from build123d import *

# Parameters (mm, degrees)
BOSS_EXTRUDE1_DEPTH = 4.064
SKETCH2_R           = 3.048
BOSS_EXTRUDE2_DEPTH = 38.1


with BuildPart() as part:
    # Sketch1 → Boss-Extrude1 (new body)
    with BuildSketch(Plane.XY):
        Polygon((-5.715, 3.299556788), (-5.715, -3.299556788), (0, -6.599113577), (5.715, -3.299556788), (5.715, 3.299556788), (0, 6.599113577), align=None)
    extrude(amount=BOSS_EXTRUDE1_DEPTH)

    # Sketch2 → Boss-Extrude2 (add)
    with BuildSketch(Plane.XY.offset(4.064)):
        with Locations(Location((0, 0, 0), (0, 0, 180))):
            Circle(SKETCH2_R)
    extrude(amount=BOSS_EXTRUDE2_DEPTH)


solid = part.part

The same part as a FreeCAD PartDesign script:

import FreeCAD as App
import Part
import Sketcher
Q = App.Units.Quantity

doc = App.newDocument("Part")
body = doc.addObject("PartDesign::Body", "Body")

# Sketch on XY plane
sketch1 = body.newObject("Sketcher::SketchObject", "Sketch")
sketch1.AttachmentSupport = (doc.getObject("XY_Plane"), [""])
sketch1.MapMode = "FlatFace"
sketch1.addGeometry([
    Part.LineSegment(App.Vector(-5.715, 3.299557, 0), App.Vector(-5.715, -3.299557, 0)),  # 0
    Part.LineSegment(App.Vector(-5.715, -3.299557, 0), App.Vector(0, -6.599114, 0)),  # 1
    Part.LineSegment(App.Vector(0, -6.599114, 0), App.Vector(5.715, -3.299557, 0)),  # 2
    Part.LineSegment(App.Vector(5.715, -3.299557, 0), App.Vector(5.715, 3.299557, 0)),  # 3
    Part.LineSegment(App.Vector(5.715, 3.299557, 0), App.Vector(0, 6.599114, 0)),  # 4
    Part.LineSegment(App.Vector(0, 6.599114, 0), App.Vector(-5.715, 3.299557, 0)),  # 5
], False)
sketch1.addConstraint([
    Sketcher.Constraint("Coincident", 0, 2, 1, 1),
    Sketcher.Constraint("Coincident", 1, 2, 2, 1),
    Sketcher.Constraint("Coincident", 2, 2, 3, 1),
    Sketcher.Constraint("Coincident", 3, 2, 4, 1),
    Sketcher.Constraint("Coincident", 4, 2, 5, 1),
    Sketcher.Constraint("Coincident", 5, 2, 0, 1),
    Sketcher.Constraint("Vertical", 0),
    Sketcher.Constraint("Vertical", 3),
    Sketcher.Constraint("Symmetric", 0, 2, 3, 2, -1, 1),
    Sketcher.Constraint("Symmetric", 1, 2, 4, 2, -1, 1),
    Sketcher.Constraint("PointOnObject", 1, 2, -2),
    Sketcher.Constraint("Parallel", 2, 5),
    Sketcher.Constraint("Horizontal", 0, 2, 2, 2),
    Sketcher.Constraint("Angle", 1, Q("-30 deg")),
    Sketcher.Constraint("DistanceX", 0, 2, 2, 2, Q("0.45 in")),
    Sketcher.Constraint("DistanceY", 0, 2, 0, 1, Q("6.599114 mm")),
])
pad1 = body.newObject("PartDesign::Pad", "Pad")
pad1.Profile = sketch1
pad1.Length = Q("0.16 in")

# Sketch on XY plane
sketch2 = body.newObject("Sketcher::SketchObject", "Sketch001")
sketch2.AttachmentSupport = (doc.getObject("XY_Plane"), [""])
sketch2.MapMode = "FlatFace"
sketch2.AttachmentOffset = App.Placement(App.Vector(0, 0, 0.16 * 25.4), App.Rotation())
sketch2.addGeometry(Part.Circle(App.Vector(0, 0, 0), App.Vector(0, 0, 1), 3.048), False)
sketch2.addConstraint([
    Sketcher.Constraint("Coincident", 0, 3, -1, 1),
    Sketcher.Constraint("Diameter", 0, Q("0.24 in")),
])
pad2 = body.newObject("PartDesign::Pad", "Pad001")
pad2.Profile = sketch2
pad2.Length = Q("1.5 in")

doc.recompute()
